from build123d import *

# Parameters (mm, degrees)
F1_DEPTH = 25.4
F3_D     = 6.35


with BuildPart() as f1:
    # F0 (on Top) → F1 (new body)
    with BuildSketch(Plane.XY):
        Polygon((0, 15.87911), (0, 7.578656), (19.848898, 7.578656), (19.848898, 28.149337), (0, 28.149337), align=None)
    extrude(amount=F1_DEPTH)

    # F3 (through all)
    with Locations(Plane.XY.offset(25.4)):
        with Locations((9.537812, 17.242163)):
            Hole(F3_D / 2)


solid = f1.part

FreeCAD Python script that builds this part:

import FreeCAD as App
import Part
import Sketcher
from FreeCAD import Vector
Q = App.Units.Quantity

doc = App.newDocument("Part")
body = doc.addObject("PartDesign::Body", "Body")

sketch1 = body.newObject("Sketcher::SketchObject", "Sketch")
sketch1.AttachmentSupport = (doc.getObject("XY_Plane"), [""])
sketch1.MapMode = "FlatFace"
sketch1.addGeometry(Part.LineSegment(Vector(0, 8, 0), Vector(20, 8, 0)), False)
sketch1.addGeometry(Part.LineSegment(Vector(20, 8, 0), Vector(20, 28, 0)), False)
sketch1.addGeometry(Part.LineSegment(Vector(20, 28, 0), Vector(0, 28, 0)), False)
sketch1.addGeometry(Part.LineSegment(Vector(0, 28, 0), Vector(0, 8, 0)), False)
sketch1.addConstraint(Sketcher.Constraint("Coincident", 0, 2, 1, 1))
sketch1.addConstraint(Sketcher.Constraint("Coincident", 1, 2, 2, 1))
sketch1.addConstraint(Sketcher.Constraint("Coincident", 2, 2, 3, 1))
sketch1.addConstraint(Sketcher.Constraint("Coincident", 3, 2, 0, 1))
sketch1.addConstraint(Sketcher.Constraint("Horizontal", 0))
sketch1.addConstraint(Sketcher.Constraint("Vertical", 1))
sketch1.addConstraint(Sketcher.Constraint("Horizontal", 2))
sketch1.addConstraint(Sketcher.Constraint("Vertical", 3))
sketch1.addConstraint(Sketcher.Constraint("PointOnObject", 2, 2, -2))
sketch1.addConstraint(Sketcher.Constraint("DistanceY", 1, 1, 1, 2, 20.570681))
sketch1.addConstraint(Sketcher.Constraint("DistanceX", 0, 1, 0, 2, 19.848898))
sketch1.addConstraint(Sketcher.Constraint("DistanceY", -1, 1, 0, 2, 7.578656))
pad1 = body.newObject("PartDesign::Pad", "Pad")
pad1.Profile = sketch1
pad1.Length = Q("1 in")

sketch2 = body.newObject("Sketcher::SketchObject", "Sketch001")
sketch2.AttachmentSupport = (doc.getObject("XY_Plane"), [""])
sketch2.MapMode = "FlatFace"
sketch2.AttachmentOffset = App.Placement(Vector(0, 0, 1 * 25.4), App.Rotation())
sketch2.addGeometry(Part.Circle(Vector(9.5, 17.2, 0), Vector(0, 0, 1), 3.2), False)
sketch2.addConstraint(Sketcher.Constraint("Diameter", 0, Q("0.25 in")))
sketch2.addConstraint(Sketcher.Constraint("DistanceX", -1, 1, 0, 3, 9.537812))
sketch2.addConstraint(Sketcher.Constraint("DistanceY", -1, 1, 0, 3, 17.242163))
doc.recompute()
hole = body.newObject("PartDesign::Hole", "Hole")
hole.Profile = sketch2
hole.ThreadType = "None"
hole.Diameter = Q("0.25 in")
hole.DepthType = "ThroughAll"

doc.recompute()
